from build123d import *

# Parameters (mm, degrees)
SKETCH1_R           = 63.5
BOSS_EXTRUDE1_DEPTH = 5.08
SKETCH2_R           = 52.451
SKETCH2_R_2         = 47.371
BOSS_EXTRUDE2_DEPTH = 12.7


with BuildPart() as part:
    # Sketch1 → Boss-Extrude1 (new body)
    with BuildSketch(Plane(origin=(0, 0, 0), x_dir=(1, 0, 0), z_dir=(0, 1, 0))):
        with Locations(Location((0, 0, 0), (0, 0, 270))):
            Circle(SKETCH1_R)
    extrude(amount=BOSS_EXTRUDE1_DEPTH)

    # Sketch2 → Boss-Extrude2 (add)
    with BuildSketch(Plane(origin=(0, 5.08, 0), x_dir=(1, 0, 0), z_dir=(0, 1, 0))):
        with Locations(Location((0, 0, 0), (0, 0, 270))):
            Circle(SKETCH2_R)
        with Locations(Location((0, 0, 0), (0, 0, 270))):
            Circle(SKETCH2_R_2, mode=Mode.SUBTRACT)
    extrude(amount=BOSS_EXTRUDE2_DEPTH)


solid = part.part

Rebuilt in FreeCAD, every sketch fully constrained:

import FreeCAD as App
import Part
import Sketcher
from FreeCAD import Vector
Q = App.Units.Quantity

doc = App.newDocument("Part")
body = doc.addObject("PartDesign::Body", "Body")

sketch1 = body.newObject("Sketcher::SketchObject", "Sketch")
sketch1.AttachmentSupport = (doc.getObject("XZ_Plane"), [""])
sketch1.MapMode = "FlatFace"
sketch1.addGeometry(Part.Circle(Vector(0, 0, 0), Vector(0, 0, 1), 64), False)
sketch1.addConstraint([
    Sketcher.Constraint("Coincident", 0, 3, -1, 1),
    Sketcher.Constraint("Diameter", 0, Q("5 in")),
])
pad1 = body.newObject("PartDesign::Pad", "Pad")
pad1.Profile = sketch1
pad1.Length = Q("0.2 in")
pad1.Reversed = True

sketch2 = body.newObject("Sketcher::SketchObject", "Sketch001")
sketch2.AttachmentSupport = (doc.getObject("XZ_Plane"), [""])
sketch2.MapMode = "FlatFace"
sketch2.AttachmentOffset = App.Placement(Vector(0, 0, -0.2 * 25.4), App.Rotation())
sketch2.addGeometry([
    Part.Circle(Vector(0, 0, 0), Vector(0, 0, 1), 52),
    Part.Circle(Vector(0, 0, 0), Vector(0, 0, 1), 47),
], False)
sketch2.addConstraint([
    Sketcher.Constraint("Coincident", 0, 3, -1, 1),
    Sketcher.Constraint("Coincident", 1, 3, -1, 1),
    Sketcher.Constraint("Diameter", 0, Q("4.13 in")),
    Sketcher.Constraint("Diameter", 1, Q("3.73 in")),
])
pad2 = body.newObject("PartDesign::Pad", "Pad001")
pad2.Profile = sketch2
pad2.Length = Q("0.5 in")
pad2.Reversed = True

doc.recompute()
